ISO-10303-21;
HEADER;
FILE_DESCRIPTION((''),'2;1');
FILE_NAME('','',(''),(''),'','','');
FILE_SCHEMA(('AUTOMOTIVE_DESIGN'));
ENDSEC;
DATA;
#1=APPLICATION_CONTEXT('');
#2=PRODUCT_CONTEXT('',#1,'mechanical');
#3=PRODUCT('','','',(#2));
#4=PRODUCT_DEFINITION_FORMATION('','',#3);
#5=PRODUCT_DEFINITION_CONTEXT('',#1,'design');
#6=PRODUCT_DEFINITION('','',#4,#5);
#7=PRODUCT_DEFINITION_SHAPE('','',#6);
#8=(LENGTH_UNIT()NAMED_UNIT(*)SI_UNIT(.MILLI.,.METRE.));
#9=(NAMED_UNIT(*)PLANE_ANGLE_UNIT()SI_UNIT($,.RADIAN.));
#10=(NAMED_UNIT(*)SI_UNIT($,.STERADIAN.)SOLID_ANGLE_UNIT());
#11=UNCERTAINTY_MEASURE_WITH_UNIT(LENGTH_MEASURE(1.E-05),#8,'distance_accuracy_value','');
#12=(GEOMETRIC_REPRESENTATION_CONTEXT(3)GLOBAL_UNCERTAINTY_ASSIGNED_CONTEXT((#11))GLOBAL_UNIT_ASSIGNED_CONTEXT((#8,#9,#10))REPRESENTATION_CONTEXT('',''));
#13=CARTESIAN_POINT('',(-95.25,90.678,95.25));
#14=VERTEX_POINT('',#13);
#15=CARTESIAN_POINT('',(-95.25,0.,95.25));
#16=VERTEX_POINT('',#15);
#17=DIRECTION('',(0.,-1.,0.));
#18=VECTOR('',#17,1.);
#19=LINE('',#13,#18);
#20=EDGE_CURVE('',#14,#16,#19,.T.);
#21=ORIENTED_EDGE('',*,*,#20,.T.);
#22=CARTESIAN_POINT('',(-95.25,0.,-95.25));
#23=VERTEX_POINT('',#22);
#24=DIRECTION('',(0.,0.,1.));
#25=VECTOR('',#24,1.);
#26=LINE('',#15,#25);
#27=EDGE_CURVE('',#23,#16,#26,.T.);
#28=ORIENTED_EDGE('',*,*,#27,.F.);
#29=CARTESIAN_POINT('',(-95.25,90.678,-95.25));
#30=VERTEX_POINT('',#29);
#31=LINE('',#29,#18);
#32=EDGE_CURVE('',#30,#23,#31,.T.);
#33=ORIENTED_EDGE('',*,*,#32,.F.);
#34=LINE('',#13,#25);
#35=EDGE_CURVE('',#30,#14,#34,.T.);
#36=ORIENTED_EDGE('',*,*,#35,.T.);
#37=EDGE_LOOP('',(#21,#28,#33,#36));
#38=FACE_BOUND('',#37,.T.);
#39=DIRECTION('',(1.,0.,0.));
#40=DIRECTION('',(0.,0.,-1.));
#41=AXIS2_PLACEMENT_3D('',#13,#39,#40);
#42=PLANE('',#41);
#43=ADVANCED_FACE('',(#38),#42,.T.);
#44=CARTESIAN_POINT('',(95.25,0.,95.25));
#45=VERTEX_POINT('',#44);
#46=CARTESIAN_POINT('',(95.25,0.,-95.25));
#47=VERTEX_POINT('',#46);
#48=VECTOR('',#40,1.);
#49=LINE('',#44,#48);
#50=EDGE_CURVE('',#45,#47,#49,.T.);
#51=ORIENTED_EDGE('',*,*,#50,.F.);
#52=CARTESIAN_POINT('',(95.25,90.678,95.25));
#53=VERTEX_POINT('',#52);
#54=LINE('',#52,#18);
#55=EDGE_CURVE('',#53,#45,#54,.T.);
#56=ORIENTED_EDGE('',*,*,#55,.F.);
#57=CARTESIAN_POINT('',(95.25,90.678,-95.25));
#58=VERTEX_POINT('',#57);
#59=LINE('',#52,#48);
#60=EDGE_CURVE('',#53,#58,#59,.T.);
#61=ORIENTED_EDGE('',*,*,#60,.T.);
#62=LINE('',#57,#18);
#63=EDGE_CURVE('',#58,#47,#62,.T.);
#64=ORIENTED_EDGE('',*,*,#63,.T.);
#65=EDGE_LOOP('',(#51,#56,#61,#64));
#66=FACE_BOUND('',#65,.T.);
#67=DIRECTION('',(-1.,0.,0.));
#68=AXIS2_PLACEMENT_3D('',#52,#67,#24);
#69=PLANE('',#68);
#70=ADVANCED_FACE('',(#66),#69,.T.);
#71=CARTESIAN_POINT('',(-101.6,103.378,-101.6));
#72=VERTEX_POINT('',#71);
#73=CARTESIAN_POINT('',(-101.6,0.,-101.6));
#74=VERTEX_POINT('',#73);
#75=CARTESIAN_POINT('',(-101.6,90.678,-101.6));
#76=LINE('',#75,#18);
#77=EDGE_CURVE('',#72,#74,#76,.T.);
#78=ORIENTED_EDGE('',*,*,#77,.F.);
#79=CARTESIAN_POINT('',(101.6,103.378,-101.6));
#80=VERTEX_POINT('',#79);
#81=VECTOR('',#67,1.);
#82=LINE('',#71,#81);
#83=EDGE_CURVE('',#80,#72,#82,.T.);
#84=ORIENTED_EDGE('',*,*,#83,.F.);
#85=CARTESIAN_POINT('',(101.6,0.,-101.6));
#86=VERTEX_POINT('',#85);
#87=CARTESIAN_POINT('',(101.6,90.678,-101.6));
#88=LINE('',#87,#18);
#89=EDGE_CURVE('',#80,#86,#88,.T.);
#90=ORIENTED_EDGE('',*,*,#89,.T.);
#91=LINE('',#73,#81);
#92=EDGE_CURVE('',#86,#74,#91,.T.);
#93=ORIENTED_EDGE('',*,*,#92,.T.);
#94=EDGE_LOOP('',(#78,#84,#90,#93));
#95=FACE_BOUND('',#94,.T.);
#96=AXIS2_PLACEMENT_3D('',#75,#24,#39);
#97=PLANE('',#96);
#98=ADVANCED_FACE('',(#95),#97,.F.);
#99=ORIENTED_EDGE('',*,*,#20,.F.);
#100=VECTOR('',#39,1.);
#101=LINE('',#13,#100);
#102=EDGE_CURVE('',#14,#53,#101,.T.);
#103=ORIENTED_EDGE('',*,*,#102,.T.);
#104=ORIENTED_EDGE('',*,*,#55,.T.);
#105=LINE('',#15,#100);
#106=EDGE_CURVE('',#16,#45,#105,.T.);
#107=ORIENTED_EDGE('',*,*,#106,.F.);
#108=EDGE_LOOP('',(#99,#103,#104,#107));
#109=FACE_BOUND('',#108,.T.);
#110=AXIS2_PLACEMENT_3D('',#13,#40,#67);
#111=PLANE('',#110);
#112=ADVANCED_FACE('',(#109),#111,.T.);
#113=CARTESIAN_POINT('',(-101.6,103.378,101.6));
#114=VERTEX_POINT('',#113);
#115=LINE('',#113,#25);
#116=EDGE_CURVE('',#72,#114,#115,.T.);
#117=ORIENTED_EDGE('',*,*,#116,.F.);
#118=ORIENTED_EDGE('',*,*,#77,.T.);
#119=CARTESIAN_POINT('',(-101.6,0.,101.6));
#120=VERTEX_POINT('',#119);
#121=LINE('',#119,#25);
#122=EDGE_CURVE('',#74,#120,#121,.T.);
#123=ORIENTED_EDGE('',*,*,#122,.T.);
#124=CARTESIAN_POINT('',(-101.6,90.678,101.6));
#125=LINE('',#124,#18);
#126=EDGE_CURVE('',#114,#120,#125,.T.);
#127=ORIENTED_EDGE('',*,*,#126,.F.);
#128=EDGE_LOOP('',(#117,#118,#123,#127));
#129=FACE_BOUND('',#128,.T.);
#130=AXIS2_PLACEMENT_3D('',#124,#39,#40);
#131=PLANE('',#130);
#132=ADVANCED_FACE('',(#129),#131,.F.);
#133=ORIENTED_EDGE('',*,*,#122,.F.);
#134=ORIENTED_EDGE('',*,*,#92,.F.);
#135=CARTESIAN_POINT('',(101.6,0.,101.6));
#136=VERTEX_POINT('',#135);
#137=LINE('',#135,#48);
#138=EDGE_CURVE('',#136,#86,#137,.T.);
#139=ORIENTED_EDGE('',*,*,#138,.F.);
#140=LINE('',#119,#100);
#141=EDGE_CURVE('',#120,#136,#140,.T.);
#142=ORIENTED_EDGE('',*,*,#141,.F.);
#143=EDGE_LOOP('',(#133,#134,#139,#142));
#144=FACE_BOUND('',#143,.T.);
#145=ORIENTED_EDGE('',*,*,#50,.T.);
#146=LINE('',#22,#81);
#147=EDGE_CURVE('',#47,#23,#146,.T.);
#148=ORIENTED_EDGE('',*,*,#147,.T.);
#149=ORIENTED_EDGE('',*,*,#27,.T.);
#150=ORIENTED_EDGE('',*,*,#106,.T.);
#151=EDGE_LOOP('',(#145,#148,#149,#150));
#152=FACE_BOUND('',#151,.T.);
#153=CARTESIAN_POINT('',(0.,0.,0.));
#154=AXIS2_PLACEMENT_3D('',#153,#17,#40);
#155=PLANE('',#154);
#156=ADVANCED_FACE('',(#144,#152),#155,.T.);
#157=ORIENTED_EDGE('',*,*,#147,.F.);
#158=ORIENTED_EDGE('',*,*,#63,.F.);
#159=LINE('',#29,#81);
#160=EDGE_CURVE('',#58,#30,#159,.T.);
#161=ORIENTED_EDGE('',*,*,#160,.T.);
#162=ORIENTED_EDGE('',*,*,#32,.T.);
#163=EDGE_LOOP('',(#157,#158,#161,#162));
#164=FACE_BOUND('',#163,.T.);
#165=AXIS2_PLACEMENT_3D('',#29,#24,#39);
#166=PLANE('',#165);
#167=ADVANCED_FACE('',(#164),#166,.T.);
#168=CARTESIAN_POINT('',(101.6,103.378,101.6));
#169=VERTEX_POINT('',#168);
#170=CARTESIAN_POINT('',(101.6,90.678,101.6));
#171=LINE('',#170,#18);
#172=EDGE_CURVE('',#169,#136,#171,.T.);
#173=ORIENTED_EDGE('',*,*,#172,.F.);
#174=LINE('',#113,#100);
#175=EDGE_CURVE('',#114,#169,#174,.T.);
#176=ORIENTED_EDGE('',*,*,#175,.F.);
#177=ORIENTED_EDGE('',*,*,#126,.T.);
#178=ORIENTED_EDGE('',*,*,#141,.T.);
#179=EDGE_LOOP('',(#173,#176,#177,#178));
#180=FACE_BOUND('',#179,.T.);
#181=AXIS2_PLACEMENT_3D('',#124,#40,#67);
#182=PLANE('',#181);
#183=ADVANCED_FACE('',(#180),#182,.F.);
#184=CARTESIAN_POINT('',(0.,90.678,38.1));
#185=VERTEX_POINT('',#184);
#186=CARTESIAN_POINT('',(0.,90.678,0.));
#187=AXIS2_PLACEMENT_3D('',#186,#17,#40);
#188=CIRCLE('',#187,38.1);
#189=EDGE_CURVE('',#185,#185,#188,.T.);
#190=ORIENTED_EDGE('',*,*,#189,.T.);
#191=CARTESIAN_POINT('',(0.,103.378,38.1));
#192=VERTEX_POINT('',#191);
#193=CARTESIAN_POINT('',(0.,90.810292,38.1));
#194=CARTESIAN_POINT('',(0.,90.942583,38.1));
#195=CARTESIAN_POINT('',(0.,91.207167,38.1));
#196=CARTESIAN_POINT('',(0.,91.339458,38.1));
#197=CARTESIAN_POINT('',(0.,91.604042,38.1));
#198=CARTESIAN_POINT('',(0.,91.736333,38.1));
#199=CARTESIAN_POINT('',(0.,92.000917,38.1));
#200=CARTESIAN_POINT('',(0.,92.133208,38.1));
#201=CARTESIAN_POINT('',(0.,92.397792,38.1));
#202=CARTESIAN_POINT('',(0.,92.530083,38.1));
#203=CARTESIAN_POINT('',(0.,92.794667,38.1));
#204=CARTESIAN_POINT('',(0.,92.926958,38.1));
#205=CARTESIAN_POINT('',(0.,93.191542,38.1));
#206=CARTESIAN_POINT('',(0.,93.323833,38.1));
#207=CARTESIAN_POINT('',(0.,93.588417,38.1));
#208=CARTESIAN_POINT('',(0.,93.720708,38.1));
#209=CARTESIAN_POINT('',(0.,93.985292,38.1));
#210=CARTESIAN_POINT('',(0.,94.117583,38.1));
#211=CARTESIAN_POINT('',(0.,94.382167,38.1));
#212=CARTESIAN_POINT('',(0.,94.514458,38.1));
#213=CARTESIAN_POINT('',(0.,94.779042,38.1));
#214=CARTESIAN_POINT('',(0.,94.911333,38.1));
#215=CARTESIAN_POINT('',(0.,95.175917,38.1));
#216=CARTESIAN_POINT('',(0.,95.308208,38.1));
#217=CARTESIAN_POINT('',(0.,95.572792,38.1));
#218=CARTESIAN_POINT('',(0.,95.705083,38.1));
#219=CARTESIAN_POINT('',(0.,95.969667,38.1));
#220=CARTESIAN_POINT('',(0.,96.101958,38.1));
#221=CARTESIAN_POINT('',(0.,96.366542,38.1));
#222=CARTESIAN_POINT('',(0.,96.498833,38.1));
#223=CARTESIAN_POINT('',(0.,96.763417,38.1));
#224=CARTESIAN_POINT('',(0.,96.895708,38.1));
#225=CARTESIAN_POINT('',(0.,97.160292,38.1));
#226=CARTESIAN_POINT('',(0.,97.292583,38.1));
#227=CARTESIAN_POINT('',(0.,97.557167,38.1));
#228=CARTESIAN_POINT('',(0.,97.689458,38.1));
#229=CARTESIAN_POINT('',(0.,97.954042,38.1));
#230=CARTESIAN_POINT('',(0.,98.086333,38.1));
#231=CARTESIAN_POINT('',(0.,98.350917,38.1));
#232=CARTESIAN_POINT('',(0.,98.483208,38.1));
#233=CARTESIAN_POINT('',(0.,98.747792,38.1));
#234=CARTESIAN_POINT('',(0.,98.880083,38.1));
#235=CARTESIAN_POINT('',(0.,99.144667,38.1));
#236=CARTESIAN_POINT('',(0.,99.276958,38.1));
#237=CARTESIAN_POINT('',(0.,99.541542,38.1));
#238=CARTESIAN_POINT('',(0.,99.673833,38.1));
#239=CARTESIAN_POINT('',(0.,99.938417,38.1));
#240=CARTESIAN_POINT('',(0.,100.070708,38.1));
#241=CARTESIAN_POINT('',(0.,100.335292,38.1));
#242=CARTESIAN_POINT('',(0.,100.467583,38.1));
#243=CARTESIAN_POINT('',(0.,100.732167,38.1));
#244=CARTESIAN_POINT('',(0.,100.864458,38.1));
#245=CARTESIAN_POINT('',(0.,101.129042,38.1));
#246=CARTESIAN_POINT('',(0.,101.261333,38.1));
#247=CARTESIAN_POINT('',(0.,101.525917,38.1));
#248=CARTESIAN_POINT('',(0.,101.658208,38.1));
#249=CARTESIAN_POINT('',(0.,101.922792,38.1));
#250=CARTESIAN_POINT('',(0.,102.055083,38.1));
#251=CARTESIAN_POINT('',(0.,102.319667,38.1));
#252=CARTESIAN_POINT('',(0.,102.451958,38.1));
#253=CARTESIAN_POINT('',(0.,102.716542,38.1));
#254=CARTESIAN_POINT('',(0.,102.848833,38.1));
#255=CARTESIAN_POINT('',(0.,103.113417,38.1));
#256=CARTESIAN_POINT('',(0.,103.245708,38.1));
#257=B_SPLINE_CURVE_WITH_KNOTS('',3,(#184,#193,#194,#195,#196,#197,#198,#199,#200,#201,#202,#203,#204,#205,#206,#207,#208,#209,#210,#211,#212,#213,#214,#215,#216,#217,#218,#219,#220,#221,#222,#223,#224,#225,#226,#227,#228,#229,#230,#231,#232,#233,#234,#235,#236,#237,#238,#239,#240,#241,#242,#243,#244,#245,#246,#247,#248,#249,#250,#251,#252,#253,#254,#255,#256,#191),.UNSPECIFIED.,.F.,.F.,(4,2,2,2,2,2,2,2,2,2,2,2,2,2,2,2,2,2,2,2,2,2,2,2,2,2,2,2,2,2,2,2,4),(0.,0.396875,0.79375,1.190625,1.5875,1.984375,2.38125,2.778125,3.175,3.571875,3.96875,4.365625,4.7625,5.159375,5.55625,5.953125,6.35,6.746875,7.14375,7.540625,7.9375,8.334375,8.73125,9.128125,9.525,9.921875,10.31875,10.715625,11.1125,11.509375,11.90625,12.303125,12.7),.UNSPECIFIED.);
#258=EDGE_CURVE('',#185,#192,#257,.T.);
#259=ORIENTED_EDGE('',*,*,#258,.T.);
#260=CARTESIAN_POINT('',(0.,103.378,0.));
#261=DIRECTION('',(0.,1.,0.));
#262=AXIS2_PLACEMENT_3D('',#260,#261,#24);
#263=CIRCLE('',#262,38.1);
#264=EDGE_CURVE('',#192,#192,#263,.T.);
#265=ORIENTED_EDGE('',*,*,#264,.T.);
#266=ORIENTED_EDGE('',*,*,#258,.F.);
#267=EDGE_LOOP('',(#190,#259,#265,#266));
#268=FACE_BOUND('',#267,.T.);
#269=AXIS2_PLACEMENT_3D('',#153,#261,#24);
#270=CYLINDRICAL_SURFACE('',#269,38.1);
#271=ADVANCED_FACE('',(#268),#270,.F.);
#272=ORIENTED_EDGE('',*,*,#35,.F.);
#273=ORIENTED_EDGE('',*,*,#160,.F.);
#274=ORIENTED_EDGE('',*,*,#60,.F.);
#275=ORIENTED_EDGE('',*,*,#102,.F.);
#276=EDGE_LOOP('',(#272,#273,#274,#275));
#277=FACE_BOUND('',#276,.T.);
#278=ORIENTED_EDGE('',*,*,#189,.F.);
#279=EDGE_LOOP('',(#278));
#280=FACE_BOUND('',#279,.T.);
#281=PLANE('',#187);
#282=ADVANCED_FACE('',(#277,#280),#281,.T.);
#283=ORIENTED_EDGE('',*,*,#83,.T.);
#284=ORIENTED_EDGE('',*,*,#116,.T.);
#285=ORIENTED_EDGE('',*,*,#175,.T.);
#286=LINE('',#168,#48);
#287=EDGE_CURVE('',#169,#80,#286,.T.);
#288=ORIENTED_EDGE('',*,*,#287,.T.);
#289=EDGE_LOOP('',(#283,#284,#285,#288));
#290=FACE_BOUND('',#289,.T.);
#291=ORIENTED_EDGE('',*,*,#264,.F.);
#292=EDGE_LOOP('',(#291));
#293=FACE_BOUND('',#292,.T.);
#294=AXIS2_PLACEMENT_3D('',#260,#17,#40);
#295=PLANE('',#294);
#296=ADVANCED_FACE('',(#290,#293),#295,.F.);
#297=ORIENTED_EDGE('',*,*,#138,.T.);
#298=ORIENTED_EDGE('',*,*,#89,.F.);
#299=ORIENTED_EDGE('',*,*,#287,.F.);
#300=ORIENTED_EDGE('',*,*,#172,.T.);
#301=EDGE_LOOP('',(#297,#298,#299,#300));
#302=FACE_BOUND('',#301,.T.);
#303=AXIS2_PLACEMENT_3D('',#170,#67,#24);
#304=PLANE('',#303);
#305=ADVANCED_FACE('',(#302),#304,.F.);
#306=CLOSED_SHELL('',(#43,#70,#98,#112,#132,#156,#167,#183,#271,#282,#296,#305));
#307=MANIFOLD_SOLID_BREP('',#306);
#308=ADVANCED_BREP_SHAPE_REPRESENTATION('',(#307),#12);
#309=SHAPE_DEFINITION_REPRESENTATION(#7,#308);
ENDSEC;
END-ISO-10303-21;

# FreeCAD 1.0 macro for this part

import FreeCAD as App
import Part
import Sketcher
Q = App.Units.Quantity

doc = App.newDocument("Part")
body = doc.addObject("PartDesign::Body", "Body")

sketch1 = doc.addObject("Sketcher::SketchObject", "Sketch")
body.addObject(sketch1)
sketch1.AttachmentSupport = (doc.XZ_Plane, [""])
sketch1.MapMode = "FlatFace"
sketch1.addGeometry([
    Part.LineSegment(App.Vector(-101.6, -101.6, 0), App.Vector(-101.6, 101.6, 0)),
    Part.LineSegment(App.Vector(-101.6, 101.6, 0), App.Vector(101.6, 101.6, 0)),
    Part.LineSegment(App.Vector(101.6, 101.6, 0), App.Vector(101.6, -101.6, 0)),
    Part.LineSegment(App.Vector(101.6, -101.6, 0), App.Vector(-101.6, -101.6, 0)),
    Part.LineSegment(App.Vector(95.25, 95.25, 0), App.Vector(-95.25, 95.25, 0)),
    Part.LineSegment(App.Vector(-95.25, 95.25, 0), App.Vector(-95.25, -95.25, 0)),
    Part.LineSegment(App.Vector(-95.25, -95.25, 0), App.Vector(95.25, -95.25, 0)),
    Part.LineSegment(App.Vector(95.25, -95.25, 0), App.Vector(95.25, 95.25, 0)),
], False)
sketch1.addConstraint([
    Sketcher.Constraint("Coincident", 0, 2, 1, 1),
    Sketcher.Constraint("Coincident", 1, 2, 2, 1),
    Sketcher.Constraint("Coincident", 2, 2, 3, 1),
    Sketcher.Constraint("Coincident", 3, 2, 0, 1),
    Sketcher.Constraint("Coincident", 4, 2, 5, 1),
    Sketcher.Constraint("Coincident", 5, 2, 6, 1),
    Sketcher.Constraint("Coincident", 6, 2, 7, 1),
    Sketcher.Constraint("Coincident", 7, 2, 4, 1),
    Sketcher.Constraint("Vertical", 0),
    Sketcher.Constraint("Horizontal", 1),
    Sketcher.Constraint("Vertical", 2),
    Sketcher.Constraint("Horizontal", 3),
    Sketcher.Constraint("Horizontal", 4),
    Sketcher.Constraint("Vertical", 5),
    Sketcher.Constraint("Horizontal", 6),
    Sketcher.Constraint("Vertical", 7),
    Sketcher.Constraint("Symmetric", 0, 2, 2, 2, -1, 1),
    Sketcher.Constraint("Symmetric", 4, 2, 6, 2, -1, 1),
    Sketcher.Constraint("Equal", 3, 0),
    Sketcher.Constraint("Equal", 6, 5),
    Sketcher.Constraint("DistanceX", 1, 1, 1, 2, Q("8 in")),
    Sketcher.Constraint("DistanceX", 4, 2, 4, 1, Q("7.5 in")),
])
pad1 = doc.addObject("PartDesign::Pad", "Pad")
body.addObject(pad1)
pad1.Profile = sketch1
pad1.Length = Q("3.57 in")
pad1.Reversed = True

sketch2 = doc.addObject("Sketcher::SketchObject", "Sketch001")
body.addObject(sketch2)
sketch2.AttachmentSupport = (doc.XZ_Plane, [""])
sketch2.MapMode = "FlatFace"
sketch2.AttachmentOffset = App.Placement(App.Vector(0, 0, -3.57 * 25.4), App.Rotation())
sketch2.addGeometry([
    Part.LineSegment(App.Vector(-101.6, -101.6, 0), App.Vector(-101.6, 101.6, 0)),
    Part.LineSegment(App.Vector(-101.6, 101.6, 0), App.Vector(101.6, 101.6, 0)),
    Part.LineSegment(App.Vector(101.6, 101.6, 0), App.Vector(101.6, -101.6, 0)),
    Part.LineSegment(App.Vector(101.6, -101.6, 0), App.Vector(-101.6, -101.6, 0)),
], False)
sketch2.addConstraint([
    Sketcher.Constraint("Coincident", 0, 2, 1, 1),
    Sketcher.Constraint("Coincident", 1, 2, 2, 1),
    Sketcher.Constraint("Coincident", 2, 2, 3, 1),
    Sketcher.Constraint("Coincident", 3, 2, 0, 1),
    Sketcher.Constraint("Vertical", 0),
    Sketcher.Constraint("Horizontal", 1),
    Sketcher.Constraint("Vertical", 2),
    Sketcher.Constraint("Horizontal", 3),
    Sketcher.Constraint("Symmetric", 0, 2, 2, 2, -1, 1),
    Sketcher.Constraint("Equal", 3, 0),
    Sketcher.Constraint("DistanceX", 1, 1, 1, 2, Q("8 in")),
])
pad2 = doc.addObject("PartDesign::Pad", "Pad001")
body.addObject(pad2)
pad2.Profile = sketch2
pad2.Length = Q("0.5 in")
pad2.Reversed = True

sketch3 = doc.addObject("Sketcher::SketchObject", "Sketch002")
body.addObject(sketch3)
sketch3.AttachmentSupport = (doc.XZ_Plane, [""])
sketch3.MapMode = "FlatFace"
sketch3.AttachmentOffset = App.Placement(App.Vector(0, 0, -4.07 * 25.4), App.Rotation())
sketch3.addGeometry(Part.Circle(App.Vector(0, 0, 0), App.Vector(0, 0, 1), 38.1), False)
sketch3.addConstraint([
    Sketcher.Constraint("Coincident", 0, 3, -1, 1),
    Sketcher.Constraint("Diameter", 0, Q("3 in")),
])
pocket1 = doc.addObject("PartDesign::Pocket", "Pocket")
body.addObject(pocket1)
pocket1.Profile = sketch3
pocket1.Type = "ThroughAll"
pocket1.Reversed = True

doc.recompute()
